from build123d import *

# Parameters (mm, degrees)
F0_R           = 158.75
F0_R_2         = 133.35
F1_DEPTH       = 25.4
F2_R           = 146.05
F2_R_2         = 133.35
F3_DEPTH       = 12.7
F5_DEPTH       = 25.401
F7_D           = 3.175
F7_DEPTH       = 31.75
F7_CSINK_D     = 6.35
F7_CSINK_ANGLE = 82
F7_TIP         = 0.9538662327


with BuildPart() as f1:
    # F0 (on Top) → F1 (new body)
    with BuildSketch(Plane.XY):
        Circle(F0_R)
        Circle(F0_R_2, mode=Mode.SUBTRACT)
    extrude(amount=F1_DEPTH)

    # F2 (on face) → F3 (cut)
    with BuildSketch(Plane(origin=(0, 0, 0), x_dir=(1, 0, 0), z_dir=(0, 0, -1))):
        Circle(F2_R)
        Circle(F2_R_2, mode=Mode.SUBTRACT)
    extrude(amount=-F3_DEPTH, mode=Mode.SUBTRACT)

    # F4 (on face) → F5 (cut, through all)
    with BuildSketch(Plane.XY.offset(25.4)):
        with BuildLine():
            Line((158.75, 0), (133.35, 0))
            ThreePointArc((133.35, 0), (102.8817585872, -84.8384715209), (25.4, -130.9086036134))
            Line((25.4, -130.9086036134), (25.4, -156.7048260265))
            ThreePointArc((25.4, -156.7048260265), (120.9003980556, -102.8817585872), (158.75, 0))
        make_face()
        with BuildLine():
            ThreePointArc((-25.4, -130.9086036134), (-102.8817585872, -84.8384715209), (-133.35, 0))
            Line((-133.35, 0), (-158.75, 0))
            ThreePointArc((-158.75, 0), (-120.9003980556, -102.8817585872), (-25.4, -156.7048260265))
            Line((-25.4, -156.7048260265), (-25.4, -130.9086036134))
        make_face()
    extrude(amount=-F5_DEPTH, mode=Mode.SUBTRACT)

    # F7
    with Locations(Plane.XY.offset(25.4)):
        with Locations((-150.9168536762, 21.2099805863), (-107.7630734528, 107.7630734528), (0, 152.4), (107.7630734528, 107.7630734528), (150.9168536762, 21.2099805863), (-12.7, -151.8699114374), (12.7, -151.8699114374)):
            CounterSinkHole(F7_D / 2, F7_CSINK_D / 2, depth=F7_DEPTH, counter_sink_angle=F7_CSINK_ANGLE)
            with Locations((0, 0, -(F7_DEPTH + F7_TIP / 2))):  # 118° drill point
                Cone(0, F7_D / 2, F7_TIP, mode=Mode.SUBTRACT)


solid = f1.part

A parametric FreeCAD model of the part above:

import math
import FreeCAD as App
import Part
import Sketcher
from FreeCAD import Vector
Q = App.Units.Quantity

doc = App.newDocument("Part")
params = doc.addObject("Spreadsheet::Sheet", "Params")
for row, (alias, value) in enumerate([
    ("sketch1_diameter", "12.5 in"),
    ("sketch1_diameter2", "10.5 in"),
    ("pad1_length", "1 in"),
    ("sketch2_diameter", "11.5 in"),
    ("sketch2_diameter2", "10.5 in"),
    ("pocket1_length", "0.5 in"),
    ("sketch3_width", "1 in"),
    ("sketch3_radius", "5.25 in"),
    ("sketch4_diameter", "0.125 in"),
    ("hole_diameter", "0.125 in"),
    ("hole_depth", "1.25 in"),
    ("hole_csink_diameter", "0.25 in"),
], start=1):
    params.set(f"A{row}", alias)
    params.set(f"B{row}", "=" + value)
    params.setAlias(f"B{row}", alias)

body = doc.addObject("PartDesign::Body", "Body")
body.AllowCompound = True

# Sketch on XY plane
sketch1 = body.newObject("Sketcher::SketchObject", "Sketch")
sketch1.AttachmentSupport = (doc.getObject("XY_Plane"), [""])
sketch1.MapMode = "FlatFace"
sketch1.addGeometry(Part.Circle(Vector(0, 0, 0), Vector(0, 0, 1), 159), False)
sketch1.addGeometry(Part.Circle(Vector(0, 0, 0), Vector(0, 0, 1), 133), False)
sketch1.addConstraint(Sketcher.Constraint("Coincident", 0, 3, -1, 1))
sketch1.addConstraint(Sketcher.Constraint("Coincident", 1, 3, -1, 1))
sketch1.addConstraint(Sketcher.Constraint("Diameter", 0, Q("12.5 in")))
sketch1.addConstraint(Sketcher.Constraint("Diameter", 1, Q("10.5 in")))
sketch1.setExpression("Constraints[2]", "Params.sketch1_diameter")
sketch1.setExpression("Constraints[3]", "Params.sketch1_diameter2")
pad1 = body.newObject("PartDesign::Pad", "Pad")
pad1.Profile = sketch1
pad1.setExpression("Length", "Params.pad1_length")

# Sketch on XY plane
sketch2 = body.newObject("Sketcher::SketchObject", "Sketch001")
sketch2.AttachmentSupport = (doc.getObject("XY_Plane"), [""])
sketch2.MapMode = "FlatFace"
sketch2.addGeometry(Part.Circle(Vector(0, 0, 0), Vector(0, 0, 1), 146), False)
sketch2.addGeometry(Part.Circle(Vector(0, 0, 0), Vector(0, 0, 1), 133), False)
sketch2.addConstraint(Sketcher.Constraint("Coincident", 0, 3, -1, 1))
sketch2.addConstraint(Sketcher.Constraint("Coincident", 1, 3, -1, 1))
sketch2.addConstraint(Sketcher.Constraint("Diameter", 0, Q("11.5 in")))
sketch2.addConstraint(Sketcher.Constraint("Diameter", 1, Q("10.5 in")))
sketch2.setExpression("Constraints[2]", "Params.sketch2_diameter")
sketch2.setExpression("Constraints[3]", "Params.sketch2_diameter2")
pocket1 = body.newObject("PartDesign::Pocket", "Pocket")
pocket1.Profile = sketch2
pocket1.setExpression("Length", "Params.pocket1_length")
pocket1.Reversed = True

# Sketch on XY plane
sketch3 = body.newObject("Sketcher::SketchObject", "Sketch002")
sketch3.AttachmentSupport = (doc.getObject("XY_Plane"), [""])
sketch3.MapMode = "FlatFace"
sketch3.AttachmentOffset = App.Placement(Vector(0, 0, 1 * 25.4), App.Rotation())
sketch3.addGeometry(Part.LineSegment(Vector(159, 0, 0), Vector(133, 0, 0)), False)
sketch3.addGeometry(Part.ArcOfCircle(Part.Circle(Vector(0, 0, 0), Vector(0, 0, 1), 133), math.radians(-79), math.radians(0)), False)
sketch3.addGeometry(Part.LineSegment(Vector(25, -131, 0), Vector(25, -157, 0)), False)
sketch3.addGeometry(Part.ArcOfCircle(Part.Circle(Vector(0, 0, 0), Vector(0, 0, 1), 159), math.radians(-81), math.radians(0)), False)
sketch3.addGeometry(Part.ArcOfCircle(Part.Circle(Vector(0, 0, 0), Vector(0, 0, 1), 133), math.radians(180), math.radians(259)), False)
sketch3.addGeometry(Part.LineSegment(Vector(-133, 0, 0), Vector(-159, 0, 0)), False)
sketch3.addGeometry(Part.ArcOfCircle(Part.Circle(Vector(0, 0, 0), Vector(0, 0, 1), 159), math.radians(180), math.radians(261)), False)
sketch3.addGeometry(Part.LineSegment(Vector(-25, -157, 0), Vector(-25, -131, 0)), False)
sketch3.addConstraint(Sketcher.Constraint("Coincident", 0, 2, 1, 2))
sketch3.addConstraint(Sketcher.Constraint("Coincident", 1, 1, 2, 1))
sketch3.addConstraint(Sketcher.Constraint("Coincident", 2, 2, 3, 1))
sketch3.addConstraint(Sketcher.Constraint("Coincident", 3, 2, 0, 1))
sketch3.addConstraint(Sketcher.Constraint("Coincident", 4, 1, 5, 1))
sketch3.addConstraint(Sketcher.Constraint("Coincident", 5, 2, 6, 1))
sketch3.addConstraint(Sketcher.Constraint("Coincident", 6, 2, 7, 1))
sketch3.addConstraint(Sketcher.Constraint("Coincident", 7, 2, 4, 2))
sketch3.addConstraint(Sketcher.Constraint("Horizontal", 0))
sketch3.addConstraint(Sketcher.Constraint("Vertical", 2))
sketch3.addConstraint(Sketcher.Constraint("Horizontal", 5))
sketch3.addConstraint(Sketcher.Constraint("Vertical", 7))
sketch3.addConstraint(Sketcher.Constraint("Coincident", 1, 3, -1, 1))
sketch3.addConstraint(Sketcher.Constraint("Coincident", 3, 3, -1, 1))
sketch3.addConstraint(Sketcher.Constraint("Coincident", 4, 3, -1, 1))
sketch3.addConstraint(Sketcher.Constraint("Coincident", 6, 3, -1, 1))
sketch3.addConstraint(Sketcher.Constraint("Equal", 1, 4))
sketch3.addConstraint(Sketcher.Constraint("Equal", 3, 6))
sketch3.addConstraint(Sketcher.Constraint("PointOnObject", 0, 2, -1))
sketch3.addConstraint(Sketcher.Constraint("PointOnObject", 4, 1, -1))
sketch3.addConstraint(Sketcher.Constraint("Horizontal", 2, 2, 6, 2))
sketch3.addConstraint(Sketcher.Constraint("DistanceX", 0, 2, 0, 1, Q("1 in")))
sketch3.addConstraint(Sketcher.Constraint("Radius", 1, Q("5.25 in")))
sketch3.addConstraint(Sketcher.Constraint("DistanceX", -1, 1, 1, 1, Q("1 in")))
sketch3.setExpression("Constraints[21]", "Params.sketch3_width")
sketch3.setExpression("Constraints[22]", "Params.sketch3_radius")
pocket2 = body.newObject("PartDesign::Pocket", "Pocket001")
pocket2.Profile = sketch3
pocket2.Type = "ThroughAll"

# Sketch on XY plane
sketch4 = body.newObject("Sketcher::SketchObject", "Sketch003")
sketch4.AttachmentSupport = (doc.getObject("XY_Plane"), [""])
sketch4.MapMode = "FlatFace"
sketch4.AttachmentOffset = App.Placement(Vector(0, 0, 1 * 25.4), App.Rotation())
sketch4.addGeometry(Part.Circle(Vector(-150.9, 21.2, 0), Vector(0, 0, 1), 1.6), False)
sketch4.addGeometry(Part.Circle(Vector(-107.8, 107.8, 0), Vector(0, 0, 1), 1.6), False)
sketch4.addGeometry(Part.Circle(Vector(0, 152.4, 0), Vector(0, 0, 1), 1.6), False)
sketch4.addGeometry(Part.Circle(Vector(107.8, 107.8, 0), Vector(0, 0, 1), 1.6), False)
sketch4.addGeometry(Part.Circle(Vector(150.9, 21.2, 0), Vector(0, 0, 1), 1.6), False)
sketch4.addGeometry(Part.Circle(Vector(-12.7, -151.9, 0), Vector(0, 0, 1), 1.6), False)
sketch4.addGeometry(Part.Circle(Vector(12.7, -151.9, 0), Vector(0, 0, 1), 1.6), False)
sketch4.addConstraint(Sketcher.Constraint("Equal", 0, 1))
sketch4.addConstraint(Sketcher.Constraint("Equal", 1, 2))
sketch4.addConstraint(Sketcher.Constraint("Equal", 2, 3))
sketch4.addConstraint(Sketcher.Constraint("Equal", 3, 4))
sketch4.addConstraint(Sketcher.Constraint("Equal", 4, 5))
sketch4.addConstraint(Sketcher.Constraint("Equal", 5, 6))
sketch4.addConstraint(Sketcher.Constraint("Symmetric", 1, 3, 3, 3, -2))
sketch4.addConstraint(Sketcher.Constraint("Symmetric", 0, 3, 4, 3, -2))
sketch4.addConstraint(Sketcher.Constraint("Symmetric", 5, 3, 6, 3, -2))
sketch4.addConstraint(Sketcher.Constraint("PointOnObject", 2, 3, -2))
sketch4.addConstraint(Sketcher.Constraint("Diameter", 0, Q("0.125 in")))
sketch4.addConstraint(Sketcher.Constraint("DistanceY", -1, 1, 2, 3, Q("6 in")))
sketch4.addConstraint(Sketcher.Constraint("DistanceX", 5, 3, 6, 3, Q("1 in")))
sketch4.addConstraint(Sketcher.Constraint("DistanceY", -1, 1, 0, 3, Q("21.209981 mm")))
sketch4.addConstraint(Sketcher.Constraint("DistanceY", 5, 3, -1, 1, Q("151.869911 mm")))
sketch4.addConstraint(Sketcher.Constraint("DistanceX", 0, 3, 1, 3, Q("43.15378 mm")))
sketch4.addConstraint(Sketcher.Constraint("DistanceX", 0, 3, -1, 1, Q("150.916854 mm")))
sketch4.addConstraint(Sketcher.Constraint("DistanceY", -1, 1, 1, 3, Q("107.763073 mm")))
sketch4.setExpression("Constraints[10]", "Params.sketch4_diameter")
doc.recompute()
hole = body.newObject("PartDesign::Hole", "Hole")
hole.Profile = sketch4
hole.ThreadType = "None"
hole.setExpression("Diameter", "Params.hole_diameter")
hole.DepthType = "Dimension"
hole.setExpression("Depth", "Params.hole_depth")
hole.DrillPoint = "Angled"
hole.DrillPointAngle = 118
hole.HoleCutType = "Countersink"
hole.setExpression("HoleCutDiameter", "Params.hole_csink_diameter")
hole.HoleCutCountersinkAngle = 82

doc.recompute()
